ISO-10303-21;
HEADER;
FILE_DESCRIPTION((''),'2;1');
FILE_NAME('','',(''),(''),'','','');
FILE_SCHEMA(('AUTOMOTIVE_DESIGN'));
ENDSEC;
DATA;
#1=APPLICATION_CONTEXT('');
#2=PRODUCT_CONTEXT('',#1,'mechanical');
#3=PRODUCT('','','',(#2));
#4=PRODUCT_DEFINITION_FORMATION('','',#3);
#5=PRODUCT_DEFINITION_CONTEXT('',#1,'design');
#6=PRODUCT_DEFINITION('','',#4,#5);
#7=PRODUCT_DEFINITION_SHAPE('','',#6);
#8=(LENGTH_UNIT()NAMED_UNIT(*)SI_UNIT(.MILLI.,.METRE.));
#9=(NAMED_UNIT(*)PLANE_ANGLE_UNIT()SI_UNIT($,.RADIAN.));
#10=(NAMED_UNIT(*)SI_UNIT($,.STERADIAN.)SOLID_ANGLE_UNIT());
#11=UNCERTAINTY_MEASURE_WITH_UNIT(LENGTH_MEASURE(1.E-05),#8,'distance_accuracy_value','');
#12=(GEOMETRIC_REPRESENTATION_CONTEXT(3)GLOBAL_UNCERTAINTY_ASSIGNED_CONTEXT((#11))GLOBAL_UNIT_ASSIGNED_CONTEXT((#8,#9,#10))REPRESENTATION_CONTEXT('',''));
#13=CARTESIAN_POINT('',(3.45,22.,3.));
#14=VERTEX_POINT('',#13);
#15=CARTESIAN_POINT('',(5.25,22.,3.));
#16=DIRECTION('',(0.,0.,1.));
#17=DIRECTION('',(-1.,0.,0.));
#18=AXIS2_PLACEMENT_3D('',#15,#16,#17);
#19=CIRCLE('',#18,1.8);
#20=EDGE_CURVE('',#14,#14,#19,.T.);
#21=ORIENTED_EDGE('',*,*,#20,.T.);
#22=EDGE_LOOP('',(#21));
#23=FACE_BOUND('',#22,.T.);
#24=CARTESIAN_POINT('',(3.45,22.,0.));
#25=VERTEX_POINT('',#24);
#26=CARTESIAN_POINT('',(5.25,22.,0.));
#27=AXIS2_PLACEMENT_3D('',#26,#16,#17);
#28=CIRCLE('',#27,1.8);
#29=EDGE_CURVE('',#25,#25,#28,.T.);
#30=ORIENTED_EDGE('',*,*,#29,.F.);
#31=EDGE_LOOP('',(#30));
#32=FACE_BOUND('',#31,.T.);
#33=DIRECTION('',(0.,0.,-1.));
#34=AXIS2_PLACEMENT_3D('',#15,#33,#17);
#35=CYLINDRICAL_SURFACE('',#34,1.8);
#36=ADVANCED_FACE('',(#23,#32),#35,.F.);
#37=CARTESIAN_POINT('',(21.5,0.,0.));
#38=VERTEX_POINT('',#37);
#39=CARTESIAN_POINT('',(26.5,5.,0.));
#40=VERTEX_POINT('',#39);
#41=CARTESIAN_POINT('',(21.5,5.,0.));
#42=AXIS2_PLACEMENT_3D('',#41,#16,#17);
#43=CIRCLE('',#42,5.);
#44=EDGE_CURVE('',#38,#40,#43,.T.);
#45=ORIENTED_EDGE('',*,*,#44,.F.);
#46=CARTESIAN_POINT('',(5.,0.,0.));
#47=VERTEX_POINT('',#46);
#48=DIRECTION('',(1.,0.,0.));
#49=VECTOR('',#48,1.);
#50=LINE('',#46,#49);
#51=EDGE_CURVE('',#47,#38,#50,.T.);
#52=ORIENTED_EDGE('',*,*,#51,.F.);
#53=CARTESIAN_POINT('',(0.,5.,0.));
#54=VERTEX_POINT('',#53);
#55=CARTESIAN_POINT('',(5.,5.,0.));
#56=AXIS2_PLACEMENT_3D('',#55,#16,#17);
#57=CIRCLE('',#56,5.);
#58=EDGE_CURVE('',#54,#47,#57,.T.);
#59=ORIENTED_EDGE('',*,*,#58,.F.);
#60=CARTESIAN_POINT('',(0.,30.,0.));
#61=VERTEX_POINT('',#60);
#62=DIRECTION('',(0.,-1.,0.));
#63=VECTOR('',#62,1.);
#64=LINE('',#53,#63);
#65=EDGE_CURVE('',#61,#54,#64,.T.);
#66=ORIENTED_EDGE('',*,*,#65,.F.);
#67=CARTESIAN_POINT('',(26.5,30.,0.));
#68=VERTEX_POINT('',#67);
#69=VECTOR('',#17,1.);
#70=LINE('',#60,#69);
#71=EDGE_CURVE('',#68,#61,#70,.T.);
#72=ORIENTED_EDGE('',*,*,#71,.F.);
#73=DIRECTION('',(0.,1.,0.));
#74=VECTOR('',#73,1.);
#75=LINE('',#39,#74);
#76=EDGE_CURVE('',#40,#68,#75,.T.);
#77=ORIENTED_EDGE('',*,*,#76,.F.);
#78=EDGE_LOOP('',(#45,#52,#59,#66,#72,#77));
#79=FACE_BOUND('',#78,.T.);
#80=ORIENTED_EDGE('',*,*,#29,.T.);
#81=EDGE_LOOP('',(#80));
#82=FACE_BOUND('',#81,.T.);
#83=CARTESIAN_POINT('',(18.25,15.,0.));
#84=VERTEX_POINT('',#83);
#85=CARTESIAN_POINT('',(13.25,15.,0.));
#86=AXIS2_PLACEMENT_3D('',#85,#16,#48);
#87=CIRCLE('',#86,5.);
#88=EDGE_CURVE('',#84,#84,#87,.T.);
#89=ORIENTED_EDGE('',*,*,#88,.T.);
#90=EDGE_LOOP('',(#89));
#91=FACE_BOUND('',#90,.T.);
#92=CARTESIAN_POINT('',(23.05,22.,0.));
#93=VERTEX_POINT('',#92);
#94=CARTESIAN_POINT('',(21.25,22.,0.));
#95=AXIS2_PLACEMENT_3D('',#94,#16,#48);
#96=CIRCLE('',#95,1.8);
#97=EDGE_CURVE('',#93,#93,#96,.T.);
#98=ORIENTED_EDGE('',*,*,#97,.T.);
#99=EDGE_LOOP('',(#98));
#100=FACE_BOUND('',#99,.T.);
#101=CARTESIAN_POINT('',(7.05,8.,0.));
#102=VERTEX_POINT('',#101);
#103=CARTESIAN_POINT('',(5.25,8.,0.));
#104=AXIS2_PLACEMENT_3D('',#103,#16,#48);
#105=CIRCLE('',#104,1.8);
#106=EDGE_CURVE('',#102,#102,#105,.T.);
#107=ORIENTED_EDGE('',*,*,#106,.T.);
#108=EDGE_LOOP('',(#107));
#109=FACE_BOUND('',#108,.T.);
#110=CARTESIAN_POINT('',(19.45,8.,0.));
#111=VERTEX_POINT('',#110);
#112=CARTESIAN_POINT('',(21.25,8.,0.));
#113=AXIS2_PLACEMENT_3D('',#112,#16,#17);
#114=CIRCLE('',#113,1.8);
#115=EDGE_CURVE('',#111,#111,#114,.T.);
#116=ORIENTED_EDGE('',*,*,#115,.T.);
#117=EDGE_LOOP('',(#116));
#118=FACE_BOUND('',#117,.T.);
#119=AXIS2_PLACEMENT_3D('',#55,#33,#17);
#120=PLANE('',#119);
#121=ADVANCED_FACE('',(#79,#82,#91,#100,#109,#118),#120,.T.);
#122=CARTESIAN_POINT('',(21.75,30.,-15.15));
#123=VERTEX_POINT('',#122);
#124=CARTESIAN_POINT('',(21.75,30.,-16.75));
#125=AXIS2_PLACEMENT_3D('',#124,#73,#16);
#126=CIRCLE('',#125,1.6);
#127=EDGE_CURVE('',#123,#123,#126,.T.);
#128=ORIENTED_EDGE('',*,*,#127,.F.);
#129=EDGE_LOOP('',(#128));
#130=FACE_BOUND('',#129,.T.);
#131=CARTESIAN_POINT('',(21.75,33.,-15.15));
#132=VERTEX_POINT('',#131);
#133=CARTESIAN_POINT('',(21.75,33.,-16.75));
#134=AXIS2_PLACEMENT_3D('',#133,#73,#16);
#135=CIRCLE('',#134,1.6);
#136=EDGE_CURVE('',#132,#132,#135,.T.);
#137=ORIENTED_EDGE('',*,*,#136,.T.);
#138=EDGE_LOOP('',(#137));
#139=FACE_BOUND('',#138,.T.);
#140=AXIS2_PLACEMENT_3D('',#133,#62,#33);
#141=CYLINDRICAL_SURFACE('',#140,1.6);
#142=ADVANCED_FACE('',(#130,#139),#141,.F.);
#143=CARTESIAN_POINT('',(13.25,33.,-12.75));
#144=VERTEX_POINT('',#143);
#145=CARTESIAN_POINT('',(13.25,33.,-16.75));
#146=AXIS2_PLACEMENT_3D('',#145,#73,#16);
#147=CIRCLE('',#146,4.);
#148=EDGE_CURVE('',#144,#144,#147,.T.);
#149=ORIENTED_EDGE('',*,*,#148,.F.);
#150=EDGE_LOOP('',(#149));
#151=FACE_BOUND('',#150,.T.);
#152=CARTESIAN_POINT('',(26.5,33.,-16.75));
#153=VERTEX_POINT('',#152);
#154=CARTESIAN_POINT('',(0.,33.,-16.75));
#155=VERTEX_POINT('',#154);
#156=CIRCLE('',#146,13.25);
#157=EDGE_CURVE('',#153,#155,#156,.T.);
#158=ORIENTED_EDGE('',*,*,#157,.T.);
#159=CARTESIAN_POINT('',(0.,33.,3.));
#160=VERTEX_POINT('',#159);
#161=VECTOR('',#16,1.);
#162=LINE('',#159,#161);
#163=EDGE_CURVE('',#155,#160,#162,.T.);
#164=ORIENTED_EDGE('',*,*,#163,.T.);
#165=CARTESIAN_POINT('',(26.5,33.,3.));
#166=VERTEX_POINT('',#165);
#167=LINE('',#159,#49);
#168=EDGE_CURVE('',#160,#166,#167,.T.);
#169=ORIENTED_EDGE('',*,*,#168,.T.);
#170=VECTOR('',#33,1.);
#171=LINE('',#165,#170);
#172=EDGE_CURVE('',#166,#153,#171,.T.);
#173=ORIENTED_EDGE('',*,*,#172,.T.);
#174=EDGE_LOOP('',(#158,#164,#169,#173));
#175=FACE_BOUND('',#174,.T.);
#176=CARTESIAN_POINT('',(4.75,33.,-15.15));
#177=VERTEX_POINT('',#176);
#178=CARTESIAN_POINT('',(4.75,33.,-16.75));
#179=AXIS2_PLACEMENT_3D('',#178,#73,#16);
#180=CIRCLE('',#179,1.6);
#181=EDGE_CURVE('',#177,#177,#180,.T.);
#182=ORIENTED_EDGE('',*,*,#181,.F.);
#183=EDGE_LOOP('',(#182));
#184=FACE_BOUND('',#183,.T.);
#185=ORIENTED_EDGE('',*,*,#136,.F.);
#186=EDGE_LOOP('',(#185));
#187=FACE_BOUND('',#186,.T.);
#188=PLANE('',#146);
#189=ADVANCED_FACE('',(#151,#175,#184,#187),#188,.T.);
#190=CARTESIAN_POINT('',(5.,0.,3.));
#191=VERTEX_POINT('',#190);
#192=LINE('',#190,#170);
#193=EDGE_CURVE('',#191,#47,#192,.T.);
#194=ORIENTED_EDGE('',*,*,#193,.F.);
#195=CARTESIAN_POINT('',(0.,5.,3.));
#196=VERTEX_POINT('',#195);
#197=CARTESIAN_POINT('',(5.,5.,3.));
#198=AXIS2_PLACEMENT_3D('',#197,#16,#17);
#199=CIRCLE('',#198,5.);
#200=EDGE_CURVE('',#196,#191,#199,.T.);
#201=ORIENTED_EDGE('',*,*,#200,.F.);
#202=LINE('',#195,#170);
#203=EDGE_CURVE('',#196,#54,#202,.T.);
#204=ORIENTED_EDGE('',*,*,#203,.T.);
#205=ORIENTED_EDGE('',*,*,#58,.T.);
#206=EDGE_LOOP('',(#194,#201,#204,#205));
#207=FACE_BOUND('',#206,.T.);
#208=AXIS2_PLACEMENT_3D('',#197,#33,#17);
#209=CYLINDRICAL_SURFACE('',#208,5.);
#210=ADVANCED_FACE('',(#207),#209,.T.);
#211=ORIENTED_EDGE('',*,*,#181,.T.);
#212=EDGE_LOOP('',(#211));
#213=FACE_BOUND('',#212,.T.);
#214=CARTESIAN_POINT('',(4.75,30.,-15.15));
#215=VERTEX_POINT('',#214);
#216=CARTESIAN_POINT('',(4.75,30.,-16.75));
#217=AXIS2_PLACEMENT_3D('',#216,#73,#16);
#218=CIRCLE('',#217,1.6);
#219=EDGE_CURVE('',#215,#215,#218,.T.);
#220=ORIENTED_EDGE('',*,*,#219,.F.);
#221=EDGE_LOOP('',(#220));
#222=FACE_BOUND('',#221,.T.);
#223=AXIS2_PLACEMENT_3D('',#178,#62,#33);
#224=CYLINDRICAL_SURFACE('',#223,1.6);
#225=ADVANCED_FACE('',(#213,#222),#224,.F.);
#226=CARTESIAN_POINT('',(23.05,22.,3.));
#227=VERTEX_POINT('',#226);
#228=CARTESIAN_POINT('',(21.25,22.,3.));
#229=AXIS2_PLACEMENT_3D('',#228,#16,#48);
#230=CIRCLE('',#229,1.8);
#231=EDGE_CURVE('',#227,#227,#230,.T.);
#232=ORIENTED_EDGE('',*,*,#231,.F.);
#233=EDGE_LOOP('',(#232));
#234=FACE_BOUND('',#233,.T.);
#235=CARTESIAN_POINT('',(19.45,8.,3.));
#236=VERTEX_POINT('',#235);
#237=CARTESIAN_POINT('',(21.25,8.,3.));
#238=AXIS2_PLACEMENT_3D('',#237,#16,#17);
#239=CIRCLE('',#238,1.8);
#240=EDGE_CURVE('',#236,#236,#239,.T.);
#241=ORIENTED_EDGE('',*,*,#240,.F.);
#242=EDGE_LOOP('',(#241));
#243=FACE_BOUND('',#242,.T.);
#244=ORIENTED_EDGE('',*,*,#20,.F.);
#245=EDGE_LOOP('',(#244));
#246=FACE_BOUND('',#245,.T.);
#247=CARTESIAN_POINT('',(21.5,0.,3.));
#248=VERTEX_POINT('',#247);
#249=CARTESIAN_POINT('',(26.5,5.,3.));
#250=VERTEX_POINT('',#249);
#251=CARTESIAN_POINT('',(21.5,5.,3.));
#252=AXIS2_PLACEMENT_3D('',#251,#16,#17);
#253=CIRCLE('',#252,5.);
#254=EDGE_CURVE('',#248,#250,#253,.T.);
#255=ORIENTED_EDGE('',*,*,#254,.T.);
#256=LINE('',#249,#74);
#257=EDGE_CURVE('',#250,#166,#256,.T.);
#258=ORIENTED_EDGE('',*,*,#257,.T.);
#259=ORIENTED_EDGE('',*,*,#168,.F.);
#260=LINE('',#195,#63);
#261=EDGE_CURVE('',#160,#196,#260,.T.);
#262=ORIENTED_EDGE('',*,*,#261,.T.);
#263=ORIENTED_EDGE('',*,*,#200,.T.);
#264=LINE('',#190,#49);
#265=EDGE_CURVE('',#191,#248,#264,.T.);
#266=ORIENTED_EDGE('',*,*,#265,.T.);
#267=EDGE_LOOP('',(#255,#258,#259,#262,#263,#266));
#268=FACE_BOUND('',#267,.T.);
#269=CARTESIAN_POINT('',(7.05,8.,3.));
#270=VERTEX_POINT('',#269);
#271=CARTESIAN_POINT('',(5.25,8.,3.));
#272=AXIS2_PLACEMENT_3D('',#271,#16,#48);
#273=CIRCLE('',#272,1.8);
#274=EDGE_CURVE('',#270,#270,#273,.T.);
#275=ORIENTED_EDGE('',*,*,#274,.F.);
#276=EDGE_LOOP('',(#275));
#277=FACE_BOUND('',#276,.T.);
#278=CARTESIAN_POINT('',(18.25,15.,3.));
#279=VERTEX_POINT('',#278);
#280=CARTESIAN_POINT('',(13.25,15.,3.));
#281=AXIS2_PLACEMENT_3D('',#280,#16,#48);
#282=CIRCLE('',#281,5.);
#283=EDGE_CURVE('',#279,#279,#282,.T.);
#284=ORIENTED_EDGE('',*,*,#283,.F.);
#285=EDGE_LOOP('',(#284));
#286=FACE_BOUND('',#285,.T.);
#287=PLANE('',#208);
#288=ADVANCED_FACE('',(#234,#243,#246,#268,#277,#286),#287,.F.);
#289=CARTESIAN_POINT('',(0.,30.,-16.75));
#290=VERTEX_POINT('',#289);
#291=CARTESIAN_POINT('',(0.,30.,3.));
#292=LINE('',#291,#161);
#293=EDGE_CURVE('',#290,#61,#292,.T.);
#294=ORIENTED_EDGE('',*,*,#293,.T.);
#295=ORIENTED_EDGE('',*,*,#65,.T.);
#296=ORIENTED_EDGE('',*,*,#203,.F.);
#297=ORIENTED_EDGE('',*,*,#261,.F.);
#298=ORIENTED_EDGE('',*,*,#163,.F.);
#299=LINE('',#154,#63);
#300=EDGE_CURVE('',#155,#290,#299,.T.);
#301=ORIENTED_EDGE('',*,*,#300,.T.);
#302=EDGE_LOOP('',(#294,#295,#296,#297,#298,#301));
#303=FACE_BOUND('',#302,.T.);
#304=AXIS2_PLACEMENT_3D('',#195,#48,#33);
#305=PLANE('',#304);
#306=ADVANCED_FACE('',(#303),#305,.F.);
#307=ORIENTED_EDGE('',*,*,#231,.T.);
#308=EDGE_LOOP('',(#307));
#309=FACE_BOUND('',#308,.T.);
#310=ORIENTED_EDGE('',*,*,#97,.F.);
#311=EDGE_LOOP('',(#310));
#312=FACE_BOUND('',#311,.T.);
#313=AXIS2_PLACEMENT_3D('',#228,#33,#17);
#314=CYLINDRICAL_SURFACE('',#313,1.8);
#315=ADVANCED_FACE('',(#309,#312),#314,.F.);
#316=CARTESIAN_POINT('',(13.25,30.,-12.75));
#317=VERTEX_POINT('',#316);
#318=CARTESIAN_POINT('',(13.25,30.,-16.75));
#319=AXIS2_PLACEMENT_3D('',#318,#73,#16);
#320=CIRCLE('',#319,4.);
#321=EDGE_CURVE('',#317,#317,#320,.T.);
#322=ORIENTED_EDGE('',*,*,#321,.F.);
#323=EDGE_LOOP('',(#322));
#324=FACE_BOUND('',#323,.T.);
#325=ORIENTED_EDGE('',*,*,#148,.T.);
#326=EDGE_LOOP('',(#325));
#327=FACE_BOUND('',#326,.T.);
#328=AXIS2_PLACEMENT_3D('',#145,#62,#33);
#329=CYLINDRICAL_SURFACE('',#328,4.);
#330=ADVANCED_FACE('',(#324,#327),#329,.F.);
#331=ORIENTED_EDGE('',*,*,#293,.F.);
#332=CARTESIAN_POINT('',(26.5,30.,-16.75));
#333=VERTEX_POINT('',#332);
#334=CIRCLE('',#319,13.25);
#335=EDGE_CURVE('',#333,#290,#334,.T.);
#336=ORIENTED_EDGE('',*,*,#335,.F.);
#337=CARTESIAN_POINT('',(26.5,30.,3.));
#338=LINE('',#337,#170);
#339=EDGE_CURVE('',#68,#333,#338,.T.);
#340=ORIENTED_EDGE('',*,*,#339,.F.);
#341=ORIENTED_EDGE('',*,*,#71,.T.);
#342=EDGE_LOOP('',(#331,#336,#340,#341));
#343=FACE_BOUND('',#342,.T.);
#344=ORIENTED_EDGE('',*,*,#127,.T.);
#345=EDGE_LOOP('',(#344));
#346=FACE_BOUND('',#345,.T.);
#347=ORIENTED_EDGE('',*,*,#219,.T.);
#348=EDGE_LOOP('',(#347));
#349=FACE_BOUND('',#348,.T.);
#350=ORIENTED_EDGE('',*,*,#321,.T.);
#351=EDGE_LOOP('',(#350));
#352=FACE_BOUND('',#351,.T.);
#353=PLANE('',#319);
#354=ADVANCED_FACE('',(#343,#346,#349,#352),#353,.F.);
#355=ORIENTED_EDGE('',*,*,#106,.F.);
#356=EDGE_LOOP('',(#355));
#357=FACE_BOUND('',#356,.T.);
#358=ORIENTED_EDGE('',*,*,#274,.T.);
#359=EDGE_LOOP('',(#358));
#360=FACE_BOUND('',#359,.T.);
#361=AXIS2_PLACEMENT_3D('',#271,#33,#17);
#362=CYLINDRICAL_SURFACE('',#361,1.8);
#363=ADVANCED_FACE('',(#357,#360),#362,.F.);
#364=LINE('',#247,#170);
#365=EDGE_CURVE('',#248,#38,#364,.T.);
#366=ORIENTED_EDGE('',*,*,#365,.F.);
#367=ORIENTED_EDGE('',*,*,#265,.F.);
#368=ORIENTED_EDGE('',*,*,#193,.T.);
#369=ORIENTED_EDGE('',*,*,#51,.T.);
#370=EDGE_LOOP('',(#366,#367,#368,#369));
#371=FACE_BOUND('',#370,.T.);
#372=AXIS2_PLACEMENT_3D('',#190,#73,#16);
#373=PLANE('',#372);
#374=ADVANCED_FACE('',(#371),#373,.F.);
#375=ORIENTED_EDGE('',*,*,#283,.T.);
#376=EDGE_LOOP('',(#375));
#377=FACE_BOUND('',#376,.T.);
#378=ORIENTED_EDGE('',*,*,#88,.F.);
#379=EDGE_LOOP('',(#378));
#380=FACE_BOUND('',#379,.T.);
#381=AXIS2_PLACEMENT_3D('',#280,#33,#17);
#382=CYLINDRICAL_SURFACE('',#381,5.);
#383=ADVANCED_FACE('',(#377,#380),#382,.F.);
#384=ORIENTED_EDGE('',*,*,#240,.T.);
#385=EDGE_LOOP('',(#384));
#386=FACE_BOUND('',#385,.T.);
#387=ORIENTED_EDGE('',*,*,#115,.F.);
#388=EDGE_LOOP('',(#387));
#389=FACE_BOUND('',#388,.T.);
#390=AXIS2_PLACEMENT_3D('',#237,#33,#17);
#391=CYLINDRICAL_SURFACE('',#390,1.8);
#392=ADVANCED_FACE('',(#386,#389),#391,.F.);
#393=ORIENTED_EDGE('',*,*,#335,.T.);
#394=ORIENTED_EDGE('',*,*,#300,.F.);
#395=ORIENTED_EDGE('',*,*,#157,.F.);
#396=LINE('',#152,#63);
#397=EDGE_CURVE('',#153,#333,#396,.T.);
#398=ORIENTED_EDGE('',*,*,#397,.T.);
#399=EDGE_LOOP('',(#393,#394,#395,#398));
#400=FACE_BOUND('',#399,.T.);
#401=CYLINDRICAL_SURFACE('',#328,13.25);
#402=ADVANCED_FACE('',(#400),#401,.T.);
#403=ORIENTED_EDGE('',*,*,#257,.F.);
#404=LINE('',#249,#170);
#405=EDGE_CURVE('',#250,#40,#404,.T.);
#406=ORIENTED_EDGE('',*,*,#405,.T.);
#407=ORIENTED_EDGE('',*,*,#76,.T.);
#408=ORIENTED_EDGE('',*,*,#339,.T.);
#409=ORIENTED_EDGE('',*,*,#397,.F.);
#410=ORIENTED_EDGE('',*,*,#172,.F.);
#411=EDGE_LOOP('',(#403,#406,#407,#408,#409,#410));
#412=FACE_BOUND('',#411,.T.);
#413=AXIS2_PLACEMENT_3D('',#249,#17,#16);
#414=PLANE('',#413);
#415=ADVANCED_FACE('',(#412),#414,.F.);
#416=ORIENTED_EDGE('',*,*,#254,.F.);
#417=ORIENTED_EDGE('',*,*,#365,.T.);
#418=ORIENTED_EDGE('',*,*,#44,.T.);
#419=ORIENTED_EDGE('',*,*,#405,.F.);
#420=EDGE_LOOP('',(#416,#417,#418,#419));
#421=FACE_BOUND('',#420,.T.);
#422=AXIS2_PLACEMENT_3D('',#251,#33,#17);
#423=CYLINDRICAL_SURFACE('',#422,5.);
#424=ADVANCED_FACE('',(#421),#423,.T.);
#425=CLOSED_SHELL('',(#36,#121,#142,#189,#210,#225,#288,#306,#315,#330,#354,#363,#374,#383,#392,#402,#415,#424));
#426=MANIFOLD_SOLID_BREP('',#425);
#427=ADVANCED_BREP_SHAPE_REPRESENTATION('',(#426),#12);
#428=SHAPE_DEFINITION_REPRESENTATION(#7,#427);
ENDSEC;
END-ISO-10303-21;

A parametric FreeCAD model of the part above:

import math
import FreeCAD as App
import Part
import Sketcher

doc = App.newDocument("Part")
params = doc.addObject("Spreadsheet::Sheet", "Params")
for row, (alias, value) in enumerate([
    ("sketch1_diameter", "10 mm"),
    ("sketch1_diameter2", "3.6 mm"),
    ("sketch1_height", "25 mm"),
    ("sketch1_width", "16.5 mm"),
    ("pad1_length", "3 mm"),
    ("sketch2_diameter", "8 mm"),
    ("sketch2_diameter2", "3.2 mm"),
    ("sketch2_radius", "13.25 mm"),
    ("sketch2_height", "19.75 mm"),
    ("pad2_length", "3 mm"),
], start=1):
    params.set(f"A{row}", alias)
    params.set(f"B{row}", "=" + value)
    params.setAlias(f"B{row}", alias)

body = doc.addObject("PartDesign::Body", "Body")

sketch1 = doc.addObject("Sketcher::SketchObject", "Sketch")
body.addObject(sketch1)
sketch1.AttachmentSupport = (doc.XY_Plane, [""])
sketch1.MapMode = "FlatFace"
sketch1.addGeometry(Part.LineSegment(App.Vector(5, 0, 0), App.Vector(21.5, 0, 0)), False)
sketch1.addGeometry(Part.ArcOfCircle(Part.Circle(App.Vector(21.5, 5, 0), App.Vector(0, 0, 1), 5), math.radians(-90), math.radians(0)), False)
sketch1.addGeometry(Part.LineSegment(App.Vector(26.5, 5, 0), App.Vector(26.5, 30, 0)), False)
sketch1.addGeometry(Part.LineSegment(App.Vector(26.5, 30, 0), App.Vector(0, 30, 0)), False)
sketch1.addGeometry(Part.LineSegment(App.Vector(0, 30, 0), App.Vector(0, 5, 0)), False)
sketch1.addGeometry(Part.ArcOfCircle(Part.Circle(App.Vector(5, 5, 0), App.Vector(0, 0, 1), 5), math.radians(180), math.radians(270)), False)
sketch1.addGeometry(Part.Circle(App.Vector(5.25, 8, 0), App.Vector(0, 0, 1), 1.8), False)
sketch1.addGeometry(Part.Circle(App.Vector(21.25, 8, 0), App.Vector(0, 0, 1), 1.8), False)
sketch1.addGeometry(Part.Circle(App.Vector(5.25, 22, 0), App.Vector(0, 0, 1), 1.8), False)
sketch1.addGeometry(Part.Circle(App.Vector(13.25, 15, 0), App.Vector(0, 0, 1), 5), False)
sketch1.addGeometry(Part.Circle(App.Vector(21.25, 22, 0), App.Vector(0, 0, 1), 1.8), False)
sketch1.addConstraint(Sketcher.Constraint("Tangent", 0, 2, 1, 1))
sketch1.addConstraint(Sketcher.Constraint("Tangent", 1, 2, 2, 1))
sketch1.addConstraint(Sketcher.Constraint("Coincident", 2, 2, 3, 1))
sketch1.addConstraint(Sketcher.Constraint("Coincident", 3, 2, 4, 1))
sketch1.addConstraint(Sketcher.Constraint("Tangent", 4, 2, 5, 1))
sketch1.addConstraint(Sketcher.Constraint("Tangent", 5, 2, 0, 1))
sketch1.addConstraint(Sketcher.Constraint("Horizontal", 0))
sketch1.addConstraint(Sketcher.Constraint("Vertical", 2))
sketch1.addConstraint(Sketcher.Constraint("Horizontal", 3))
sketch1.addConstraint(Sketcher.Constraint("Vertical", 4))
sketch1.addConstraint(Sketcher.Constraint("Equal", 1, 5))
sketch1.addConstraint(Sketcher.Constraint("Equal", 6, 7))
sketch1.addConstraint(Sketcher.Constraint("Equal", 7, 8))
sketch1.addConstraint(Sketcher.Constraint("Equal", 5, 9))
sketch1.addConstraint(Sketcher.Constraint("Equal", 8, 10))
sketch1.addConstraint(Sketcher.Constraint("PointOnObject", 0, 2, -1))
sketch1.addConstraint(Sketcher.Constraint("PointOnObject", 3, 2, -2))
sketch1.addConstraint(Sketcher.Constraint("Horizontal", 6, 3, 7, 3))
sketch1.addConstraint(Sketcher.Constraint("Horizontal", 8, 3, 10, 3))
sketch1.addConstraint(Sketcher.Constraint("Vertical", 6, 3, 8, 3))
sketch1.addConstraint(Sketcher.Constraint("Vertical", 7, 3, 10, 3))
sketch1.addConstraint(Sketcher.Constraint("Diameter", 9, 10.0))
sketch1.addConstraint(Sketcher.Constraint("Diameter", 6, 3.6))
sketch1.addConstraint(Sketcher.Constraint("DistanceY", 2, 1, 2, 2, 25.0))
sketch1.addConstraint(Sketcher.Constraint("DistanceX", 0, 1, 0, 2, 16.5))
sketch1.addConstraint(Sketcher.Constraint("DistanceY", -1, 1, 6, 3, 8.0))
sketch1.addConstraint(Sketcher.Constraint("DistanceY", -1, 1, 8, 3, 22.0))
sketch1.addConstraint(Sketcher.Constraint("DistanceY", -1, 1, 9, 3, 15.0))
sketch1.addConstraint(Sketcher.Constraint("DistanceX", 6, 3, 7, 3, 16.0))
sketch1.addConstraint(Sketcher.Constraint("DistanceX", 6, 3, 9, 3, 8.0))
sketch1.addConstraint(Sketcher.Constraint("DistanceX", -1, 1, 6, 3, 5.25))
sketch1.setExpression("Constraints[21]", "Params.sketch1_diameter")
sketch1.setExpression("Constraints[22]", "Params.sketch1_diameter2")
sketch1.setExpression("Constraints[23]", "Params.sketch1_height")
sketch1.setExpression("Constraints[24]", "Params.sketch1_width")
pad1 = doc.addObject("PartDesign::Pad", "Pad")
body.addObject(pad1)
pad1.Profile = sketch1
pad1.setExpression("Length", "Params.pad1_length")

sketch2 = doc.addObject("Sketcher::SketchObject", "Sketch001")
body.addObject(sketch2)
sketch2.AttachmentSupport = (doc.XZ_Plane, [""])
sketch2.MapMode = "FlatFace"
sketch2.AttachmentOffset = App.Placement(App.Vector(0, 0, -30), App.Rotation())
sketch2.addGeometry(Part.LineSegment(App.Vector(0, 3, 0), App.Vector(26.5, 3, 0)), False)
sketch2.addGeometry(Part.LineSegment(App.Vector(26.5, 3, 0), App.Vector(26.5, -16.75, 0)), False)
sketch2.addGeometry(Part.ArcOfCircle(Part.Circle(App.Vector(13.25, -16.75, 0), App.Vector(0, 0, 1), 13.25), math.radians(180), math.radians(360)), False)
sketch2.addGeometry(Part.LineSegment(App.Vector(0, -16.75, 0), App.Vector(0, 3, 0)), False)
sketch2.addGeometry(Part.Circle(App.Vector(4.75, -16.75, 0), App.Vector(0, 0, 1), 1.6), False)
sketch2.addGeometry(Part.Circle(App.Vector(13.25, -16.75, 0), App.Vector(0, 0, 1), 4), False)
sketch2.addGeometry(Part.Circle(App.Vector(21.75, -16.75, 0), App.Vector(0, 0, 1), 1.6), False)
sketch2.addConstraint(Sketcher.Constraint("Coincident", 0, 2, 1, 1))
sketch2.addConstraint(Sketcher.Constraint("Tangent", 1, 2, 2, 2))
sketch2.addConstraint(Sketcher.Constraint("Tangent", 2, 1, 3, 1))
sketch2.addConstraint(Sketcher.Constraint("Coincident", 3, 2, 0, 1))
sketch2.addConstraint(Sketcher.Constraint("Horizontal", 0))
sketch2.addConstraint(Sketcher.Constraint("Vertical", 1))
sketch2.addConstraint(Sketcher.Constraint("Vertical", 3))
sketch2.addConstraint(Sketcher.Constraint("Coincident", 5, 3, 2, 3))
sketch2.addConstraint(Sketcher.Constraint("Equal", 4, 6))
sketch2.addConstraint(Sketcher.Constraint("PointOnObject", 2, 1, -2))
sketch2.addConstraint(Sketcher.Constraint("Horizontal", 2, 3, 4, 3))
sketch2.addConstraint(Sketcher.Constraint("Horizontal", 5, 3, 6, 3))
sketch2.addConstraint(Sketcher.Constraint("Diameter", 5, 8.0))
sketch2.addConstraint(Sketcher.Constraint("Diameter", 4, 3.2))
sketch2.addConstraint(Sketcher.Constraint("Radius", 2, 13.25))
sketch2.addConstraint(Sketcher.Constraint("DistanceY", -1, 1, 0, 2, 3.0))
sketch2.addConstraint(Sketcher.Constraint("DistanceX", 4, 3, 6, 3, 17.0))
sketch2.addConstraint(Sketcher.Constraint("DistanceY", 1, 2, 1, 1, 19.75))
sketch2.addConstraint(Sketcher.Constraint("DistanceX", 4, 3, 2, 3, 8.5))
sketch2.setExpression("Constraints[12]", "Params.sketch2_diameter")
sketch2.setExpression("Constraints[13]", "Params.sketch2_diameter2")
sketch2.setExpression("Constraints[14]", "Params.sketch2_radius")
sketch2.setExpression("Constraints[17]", "Params.sketch2_height")
pad2 = doc.addObject("PartDesign::Pad", "Pad001")
body.addObject(pad2)
pad2.Profile = sketch2
pad2.setExpression("Length", "Params.pad2_length")
pad2.Reversed = True

doc.recompute()
